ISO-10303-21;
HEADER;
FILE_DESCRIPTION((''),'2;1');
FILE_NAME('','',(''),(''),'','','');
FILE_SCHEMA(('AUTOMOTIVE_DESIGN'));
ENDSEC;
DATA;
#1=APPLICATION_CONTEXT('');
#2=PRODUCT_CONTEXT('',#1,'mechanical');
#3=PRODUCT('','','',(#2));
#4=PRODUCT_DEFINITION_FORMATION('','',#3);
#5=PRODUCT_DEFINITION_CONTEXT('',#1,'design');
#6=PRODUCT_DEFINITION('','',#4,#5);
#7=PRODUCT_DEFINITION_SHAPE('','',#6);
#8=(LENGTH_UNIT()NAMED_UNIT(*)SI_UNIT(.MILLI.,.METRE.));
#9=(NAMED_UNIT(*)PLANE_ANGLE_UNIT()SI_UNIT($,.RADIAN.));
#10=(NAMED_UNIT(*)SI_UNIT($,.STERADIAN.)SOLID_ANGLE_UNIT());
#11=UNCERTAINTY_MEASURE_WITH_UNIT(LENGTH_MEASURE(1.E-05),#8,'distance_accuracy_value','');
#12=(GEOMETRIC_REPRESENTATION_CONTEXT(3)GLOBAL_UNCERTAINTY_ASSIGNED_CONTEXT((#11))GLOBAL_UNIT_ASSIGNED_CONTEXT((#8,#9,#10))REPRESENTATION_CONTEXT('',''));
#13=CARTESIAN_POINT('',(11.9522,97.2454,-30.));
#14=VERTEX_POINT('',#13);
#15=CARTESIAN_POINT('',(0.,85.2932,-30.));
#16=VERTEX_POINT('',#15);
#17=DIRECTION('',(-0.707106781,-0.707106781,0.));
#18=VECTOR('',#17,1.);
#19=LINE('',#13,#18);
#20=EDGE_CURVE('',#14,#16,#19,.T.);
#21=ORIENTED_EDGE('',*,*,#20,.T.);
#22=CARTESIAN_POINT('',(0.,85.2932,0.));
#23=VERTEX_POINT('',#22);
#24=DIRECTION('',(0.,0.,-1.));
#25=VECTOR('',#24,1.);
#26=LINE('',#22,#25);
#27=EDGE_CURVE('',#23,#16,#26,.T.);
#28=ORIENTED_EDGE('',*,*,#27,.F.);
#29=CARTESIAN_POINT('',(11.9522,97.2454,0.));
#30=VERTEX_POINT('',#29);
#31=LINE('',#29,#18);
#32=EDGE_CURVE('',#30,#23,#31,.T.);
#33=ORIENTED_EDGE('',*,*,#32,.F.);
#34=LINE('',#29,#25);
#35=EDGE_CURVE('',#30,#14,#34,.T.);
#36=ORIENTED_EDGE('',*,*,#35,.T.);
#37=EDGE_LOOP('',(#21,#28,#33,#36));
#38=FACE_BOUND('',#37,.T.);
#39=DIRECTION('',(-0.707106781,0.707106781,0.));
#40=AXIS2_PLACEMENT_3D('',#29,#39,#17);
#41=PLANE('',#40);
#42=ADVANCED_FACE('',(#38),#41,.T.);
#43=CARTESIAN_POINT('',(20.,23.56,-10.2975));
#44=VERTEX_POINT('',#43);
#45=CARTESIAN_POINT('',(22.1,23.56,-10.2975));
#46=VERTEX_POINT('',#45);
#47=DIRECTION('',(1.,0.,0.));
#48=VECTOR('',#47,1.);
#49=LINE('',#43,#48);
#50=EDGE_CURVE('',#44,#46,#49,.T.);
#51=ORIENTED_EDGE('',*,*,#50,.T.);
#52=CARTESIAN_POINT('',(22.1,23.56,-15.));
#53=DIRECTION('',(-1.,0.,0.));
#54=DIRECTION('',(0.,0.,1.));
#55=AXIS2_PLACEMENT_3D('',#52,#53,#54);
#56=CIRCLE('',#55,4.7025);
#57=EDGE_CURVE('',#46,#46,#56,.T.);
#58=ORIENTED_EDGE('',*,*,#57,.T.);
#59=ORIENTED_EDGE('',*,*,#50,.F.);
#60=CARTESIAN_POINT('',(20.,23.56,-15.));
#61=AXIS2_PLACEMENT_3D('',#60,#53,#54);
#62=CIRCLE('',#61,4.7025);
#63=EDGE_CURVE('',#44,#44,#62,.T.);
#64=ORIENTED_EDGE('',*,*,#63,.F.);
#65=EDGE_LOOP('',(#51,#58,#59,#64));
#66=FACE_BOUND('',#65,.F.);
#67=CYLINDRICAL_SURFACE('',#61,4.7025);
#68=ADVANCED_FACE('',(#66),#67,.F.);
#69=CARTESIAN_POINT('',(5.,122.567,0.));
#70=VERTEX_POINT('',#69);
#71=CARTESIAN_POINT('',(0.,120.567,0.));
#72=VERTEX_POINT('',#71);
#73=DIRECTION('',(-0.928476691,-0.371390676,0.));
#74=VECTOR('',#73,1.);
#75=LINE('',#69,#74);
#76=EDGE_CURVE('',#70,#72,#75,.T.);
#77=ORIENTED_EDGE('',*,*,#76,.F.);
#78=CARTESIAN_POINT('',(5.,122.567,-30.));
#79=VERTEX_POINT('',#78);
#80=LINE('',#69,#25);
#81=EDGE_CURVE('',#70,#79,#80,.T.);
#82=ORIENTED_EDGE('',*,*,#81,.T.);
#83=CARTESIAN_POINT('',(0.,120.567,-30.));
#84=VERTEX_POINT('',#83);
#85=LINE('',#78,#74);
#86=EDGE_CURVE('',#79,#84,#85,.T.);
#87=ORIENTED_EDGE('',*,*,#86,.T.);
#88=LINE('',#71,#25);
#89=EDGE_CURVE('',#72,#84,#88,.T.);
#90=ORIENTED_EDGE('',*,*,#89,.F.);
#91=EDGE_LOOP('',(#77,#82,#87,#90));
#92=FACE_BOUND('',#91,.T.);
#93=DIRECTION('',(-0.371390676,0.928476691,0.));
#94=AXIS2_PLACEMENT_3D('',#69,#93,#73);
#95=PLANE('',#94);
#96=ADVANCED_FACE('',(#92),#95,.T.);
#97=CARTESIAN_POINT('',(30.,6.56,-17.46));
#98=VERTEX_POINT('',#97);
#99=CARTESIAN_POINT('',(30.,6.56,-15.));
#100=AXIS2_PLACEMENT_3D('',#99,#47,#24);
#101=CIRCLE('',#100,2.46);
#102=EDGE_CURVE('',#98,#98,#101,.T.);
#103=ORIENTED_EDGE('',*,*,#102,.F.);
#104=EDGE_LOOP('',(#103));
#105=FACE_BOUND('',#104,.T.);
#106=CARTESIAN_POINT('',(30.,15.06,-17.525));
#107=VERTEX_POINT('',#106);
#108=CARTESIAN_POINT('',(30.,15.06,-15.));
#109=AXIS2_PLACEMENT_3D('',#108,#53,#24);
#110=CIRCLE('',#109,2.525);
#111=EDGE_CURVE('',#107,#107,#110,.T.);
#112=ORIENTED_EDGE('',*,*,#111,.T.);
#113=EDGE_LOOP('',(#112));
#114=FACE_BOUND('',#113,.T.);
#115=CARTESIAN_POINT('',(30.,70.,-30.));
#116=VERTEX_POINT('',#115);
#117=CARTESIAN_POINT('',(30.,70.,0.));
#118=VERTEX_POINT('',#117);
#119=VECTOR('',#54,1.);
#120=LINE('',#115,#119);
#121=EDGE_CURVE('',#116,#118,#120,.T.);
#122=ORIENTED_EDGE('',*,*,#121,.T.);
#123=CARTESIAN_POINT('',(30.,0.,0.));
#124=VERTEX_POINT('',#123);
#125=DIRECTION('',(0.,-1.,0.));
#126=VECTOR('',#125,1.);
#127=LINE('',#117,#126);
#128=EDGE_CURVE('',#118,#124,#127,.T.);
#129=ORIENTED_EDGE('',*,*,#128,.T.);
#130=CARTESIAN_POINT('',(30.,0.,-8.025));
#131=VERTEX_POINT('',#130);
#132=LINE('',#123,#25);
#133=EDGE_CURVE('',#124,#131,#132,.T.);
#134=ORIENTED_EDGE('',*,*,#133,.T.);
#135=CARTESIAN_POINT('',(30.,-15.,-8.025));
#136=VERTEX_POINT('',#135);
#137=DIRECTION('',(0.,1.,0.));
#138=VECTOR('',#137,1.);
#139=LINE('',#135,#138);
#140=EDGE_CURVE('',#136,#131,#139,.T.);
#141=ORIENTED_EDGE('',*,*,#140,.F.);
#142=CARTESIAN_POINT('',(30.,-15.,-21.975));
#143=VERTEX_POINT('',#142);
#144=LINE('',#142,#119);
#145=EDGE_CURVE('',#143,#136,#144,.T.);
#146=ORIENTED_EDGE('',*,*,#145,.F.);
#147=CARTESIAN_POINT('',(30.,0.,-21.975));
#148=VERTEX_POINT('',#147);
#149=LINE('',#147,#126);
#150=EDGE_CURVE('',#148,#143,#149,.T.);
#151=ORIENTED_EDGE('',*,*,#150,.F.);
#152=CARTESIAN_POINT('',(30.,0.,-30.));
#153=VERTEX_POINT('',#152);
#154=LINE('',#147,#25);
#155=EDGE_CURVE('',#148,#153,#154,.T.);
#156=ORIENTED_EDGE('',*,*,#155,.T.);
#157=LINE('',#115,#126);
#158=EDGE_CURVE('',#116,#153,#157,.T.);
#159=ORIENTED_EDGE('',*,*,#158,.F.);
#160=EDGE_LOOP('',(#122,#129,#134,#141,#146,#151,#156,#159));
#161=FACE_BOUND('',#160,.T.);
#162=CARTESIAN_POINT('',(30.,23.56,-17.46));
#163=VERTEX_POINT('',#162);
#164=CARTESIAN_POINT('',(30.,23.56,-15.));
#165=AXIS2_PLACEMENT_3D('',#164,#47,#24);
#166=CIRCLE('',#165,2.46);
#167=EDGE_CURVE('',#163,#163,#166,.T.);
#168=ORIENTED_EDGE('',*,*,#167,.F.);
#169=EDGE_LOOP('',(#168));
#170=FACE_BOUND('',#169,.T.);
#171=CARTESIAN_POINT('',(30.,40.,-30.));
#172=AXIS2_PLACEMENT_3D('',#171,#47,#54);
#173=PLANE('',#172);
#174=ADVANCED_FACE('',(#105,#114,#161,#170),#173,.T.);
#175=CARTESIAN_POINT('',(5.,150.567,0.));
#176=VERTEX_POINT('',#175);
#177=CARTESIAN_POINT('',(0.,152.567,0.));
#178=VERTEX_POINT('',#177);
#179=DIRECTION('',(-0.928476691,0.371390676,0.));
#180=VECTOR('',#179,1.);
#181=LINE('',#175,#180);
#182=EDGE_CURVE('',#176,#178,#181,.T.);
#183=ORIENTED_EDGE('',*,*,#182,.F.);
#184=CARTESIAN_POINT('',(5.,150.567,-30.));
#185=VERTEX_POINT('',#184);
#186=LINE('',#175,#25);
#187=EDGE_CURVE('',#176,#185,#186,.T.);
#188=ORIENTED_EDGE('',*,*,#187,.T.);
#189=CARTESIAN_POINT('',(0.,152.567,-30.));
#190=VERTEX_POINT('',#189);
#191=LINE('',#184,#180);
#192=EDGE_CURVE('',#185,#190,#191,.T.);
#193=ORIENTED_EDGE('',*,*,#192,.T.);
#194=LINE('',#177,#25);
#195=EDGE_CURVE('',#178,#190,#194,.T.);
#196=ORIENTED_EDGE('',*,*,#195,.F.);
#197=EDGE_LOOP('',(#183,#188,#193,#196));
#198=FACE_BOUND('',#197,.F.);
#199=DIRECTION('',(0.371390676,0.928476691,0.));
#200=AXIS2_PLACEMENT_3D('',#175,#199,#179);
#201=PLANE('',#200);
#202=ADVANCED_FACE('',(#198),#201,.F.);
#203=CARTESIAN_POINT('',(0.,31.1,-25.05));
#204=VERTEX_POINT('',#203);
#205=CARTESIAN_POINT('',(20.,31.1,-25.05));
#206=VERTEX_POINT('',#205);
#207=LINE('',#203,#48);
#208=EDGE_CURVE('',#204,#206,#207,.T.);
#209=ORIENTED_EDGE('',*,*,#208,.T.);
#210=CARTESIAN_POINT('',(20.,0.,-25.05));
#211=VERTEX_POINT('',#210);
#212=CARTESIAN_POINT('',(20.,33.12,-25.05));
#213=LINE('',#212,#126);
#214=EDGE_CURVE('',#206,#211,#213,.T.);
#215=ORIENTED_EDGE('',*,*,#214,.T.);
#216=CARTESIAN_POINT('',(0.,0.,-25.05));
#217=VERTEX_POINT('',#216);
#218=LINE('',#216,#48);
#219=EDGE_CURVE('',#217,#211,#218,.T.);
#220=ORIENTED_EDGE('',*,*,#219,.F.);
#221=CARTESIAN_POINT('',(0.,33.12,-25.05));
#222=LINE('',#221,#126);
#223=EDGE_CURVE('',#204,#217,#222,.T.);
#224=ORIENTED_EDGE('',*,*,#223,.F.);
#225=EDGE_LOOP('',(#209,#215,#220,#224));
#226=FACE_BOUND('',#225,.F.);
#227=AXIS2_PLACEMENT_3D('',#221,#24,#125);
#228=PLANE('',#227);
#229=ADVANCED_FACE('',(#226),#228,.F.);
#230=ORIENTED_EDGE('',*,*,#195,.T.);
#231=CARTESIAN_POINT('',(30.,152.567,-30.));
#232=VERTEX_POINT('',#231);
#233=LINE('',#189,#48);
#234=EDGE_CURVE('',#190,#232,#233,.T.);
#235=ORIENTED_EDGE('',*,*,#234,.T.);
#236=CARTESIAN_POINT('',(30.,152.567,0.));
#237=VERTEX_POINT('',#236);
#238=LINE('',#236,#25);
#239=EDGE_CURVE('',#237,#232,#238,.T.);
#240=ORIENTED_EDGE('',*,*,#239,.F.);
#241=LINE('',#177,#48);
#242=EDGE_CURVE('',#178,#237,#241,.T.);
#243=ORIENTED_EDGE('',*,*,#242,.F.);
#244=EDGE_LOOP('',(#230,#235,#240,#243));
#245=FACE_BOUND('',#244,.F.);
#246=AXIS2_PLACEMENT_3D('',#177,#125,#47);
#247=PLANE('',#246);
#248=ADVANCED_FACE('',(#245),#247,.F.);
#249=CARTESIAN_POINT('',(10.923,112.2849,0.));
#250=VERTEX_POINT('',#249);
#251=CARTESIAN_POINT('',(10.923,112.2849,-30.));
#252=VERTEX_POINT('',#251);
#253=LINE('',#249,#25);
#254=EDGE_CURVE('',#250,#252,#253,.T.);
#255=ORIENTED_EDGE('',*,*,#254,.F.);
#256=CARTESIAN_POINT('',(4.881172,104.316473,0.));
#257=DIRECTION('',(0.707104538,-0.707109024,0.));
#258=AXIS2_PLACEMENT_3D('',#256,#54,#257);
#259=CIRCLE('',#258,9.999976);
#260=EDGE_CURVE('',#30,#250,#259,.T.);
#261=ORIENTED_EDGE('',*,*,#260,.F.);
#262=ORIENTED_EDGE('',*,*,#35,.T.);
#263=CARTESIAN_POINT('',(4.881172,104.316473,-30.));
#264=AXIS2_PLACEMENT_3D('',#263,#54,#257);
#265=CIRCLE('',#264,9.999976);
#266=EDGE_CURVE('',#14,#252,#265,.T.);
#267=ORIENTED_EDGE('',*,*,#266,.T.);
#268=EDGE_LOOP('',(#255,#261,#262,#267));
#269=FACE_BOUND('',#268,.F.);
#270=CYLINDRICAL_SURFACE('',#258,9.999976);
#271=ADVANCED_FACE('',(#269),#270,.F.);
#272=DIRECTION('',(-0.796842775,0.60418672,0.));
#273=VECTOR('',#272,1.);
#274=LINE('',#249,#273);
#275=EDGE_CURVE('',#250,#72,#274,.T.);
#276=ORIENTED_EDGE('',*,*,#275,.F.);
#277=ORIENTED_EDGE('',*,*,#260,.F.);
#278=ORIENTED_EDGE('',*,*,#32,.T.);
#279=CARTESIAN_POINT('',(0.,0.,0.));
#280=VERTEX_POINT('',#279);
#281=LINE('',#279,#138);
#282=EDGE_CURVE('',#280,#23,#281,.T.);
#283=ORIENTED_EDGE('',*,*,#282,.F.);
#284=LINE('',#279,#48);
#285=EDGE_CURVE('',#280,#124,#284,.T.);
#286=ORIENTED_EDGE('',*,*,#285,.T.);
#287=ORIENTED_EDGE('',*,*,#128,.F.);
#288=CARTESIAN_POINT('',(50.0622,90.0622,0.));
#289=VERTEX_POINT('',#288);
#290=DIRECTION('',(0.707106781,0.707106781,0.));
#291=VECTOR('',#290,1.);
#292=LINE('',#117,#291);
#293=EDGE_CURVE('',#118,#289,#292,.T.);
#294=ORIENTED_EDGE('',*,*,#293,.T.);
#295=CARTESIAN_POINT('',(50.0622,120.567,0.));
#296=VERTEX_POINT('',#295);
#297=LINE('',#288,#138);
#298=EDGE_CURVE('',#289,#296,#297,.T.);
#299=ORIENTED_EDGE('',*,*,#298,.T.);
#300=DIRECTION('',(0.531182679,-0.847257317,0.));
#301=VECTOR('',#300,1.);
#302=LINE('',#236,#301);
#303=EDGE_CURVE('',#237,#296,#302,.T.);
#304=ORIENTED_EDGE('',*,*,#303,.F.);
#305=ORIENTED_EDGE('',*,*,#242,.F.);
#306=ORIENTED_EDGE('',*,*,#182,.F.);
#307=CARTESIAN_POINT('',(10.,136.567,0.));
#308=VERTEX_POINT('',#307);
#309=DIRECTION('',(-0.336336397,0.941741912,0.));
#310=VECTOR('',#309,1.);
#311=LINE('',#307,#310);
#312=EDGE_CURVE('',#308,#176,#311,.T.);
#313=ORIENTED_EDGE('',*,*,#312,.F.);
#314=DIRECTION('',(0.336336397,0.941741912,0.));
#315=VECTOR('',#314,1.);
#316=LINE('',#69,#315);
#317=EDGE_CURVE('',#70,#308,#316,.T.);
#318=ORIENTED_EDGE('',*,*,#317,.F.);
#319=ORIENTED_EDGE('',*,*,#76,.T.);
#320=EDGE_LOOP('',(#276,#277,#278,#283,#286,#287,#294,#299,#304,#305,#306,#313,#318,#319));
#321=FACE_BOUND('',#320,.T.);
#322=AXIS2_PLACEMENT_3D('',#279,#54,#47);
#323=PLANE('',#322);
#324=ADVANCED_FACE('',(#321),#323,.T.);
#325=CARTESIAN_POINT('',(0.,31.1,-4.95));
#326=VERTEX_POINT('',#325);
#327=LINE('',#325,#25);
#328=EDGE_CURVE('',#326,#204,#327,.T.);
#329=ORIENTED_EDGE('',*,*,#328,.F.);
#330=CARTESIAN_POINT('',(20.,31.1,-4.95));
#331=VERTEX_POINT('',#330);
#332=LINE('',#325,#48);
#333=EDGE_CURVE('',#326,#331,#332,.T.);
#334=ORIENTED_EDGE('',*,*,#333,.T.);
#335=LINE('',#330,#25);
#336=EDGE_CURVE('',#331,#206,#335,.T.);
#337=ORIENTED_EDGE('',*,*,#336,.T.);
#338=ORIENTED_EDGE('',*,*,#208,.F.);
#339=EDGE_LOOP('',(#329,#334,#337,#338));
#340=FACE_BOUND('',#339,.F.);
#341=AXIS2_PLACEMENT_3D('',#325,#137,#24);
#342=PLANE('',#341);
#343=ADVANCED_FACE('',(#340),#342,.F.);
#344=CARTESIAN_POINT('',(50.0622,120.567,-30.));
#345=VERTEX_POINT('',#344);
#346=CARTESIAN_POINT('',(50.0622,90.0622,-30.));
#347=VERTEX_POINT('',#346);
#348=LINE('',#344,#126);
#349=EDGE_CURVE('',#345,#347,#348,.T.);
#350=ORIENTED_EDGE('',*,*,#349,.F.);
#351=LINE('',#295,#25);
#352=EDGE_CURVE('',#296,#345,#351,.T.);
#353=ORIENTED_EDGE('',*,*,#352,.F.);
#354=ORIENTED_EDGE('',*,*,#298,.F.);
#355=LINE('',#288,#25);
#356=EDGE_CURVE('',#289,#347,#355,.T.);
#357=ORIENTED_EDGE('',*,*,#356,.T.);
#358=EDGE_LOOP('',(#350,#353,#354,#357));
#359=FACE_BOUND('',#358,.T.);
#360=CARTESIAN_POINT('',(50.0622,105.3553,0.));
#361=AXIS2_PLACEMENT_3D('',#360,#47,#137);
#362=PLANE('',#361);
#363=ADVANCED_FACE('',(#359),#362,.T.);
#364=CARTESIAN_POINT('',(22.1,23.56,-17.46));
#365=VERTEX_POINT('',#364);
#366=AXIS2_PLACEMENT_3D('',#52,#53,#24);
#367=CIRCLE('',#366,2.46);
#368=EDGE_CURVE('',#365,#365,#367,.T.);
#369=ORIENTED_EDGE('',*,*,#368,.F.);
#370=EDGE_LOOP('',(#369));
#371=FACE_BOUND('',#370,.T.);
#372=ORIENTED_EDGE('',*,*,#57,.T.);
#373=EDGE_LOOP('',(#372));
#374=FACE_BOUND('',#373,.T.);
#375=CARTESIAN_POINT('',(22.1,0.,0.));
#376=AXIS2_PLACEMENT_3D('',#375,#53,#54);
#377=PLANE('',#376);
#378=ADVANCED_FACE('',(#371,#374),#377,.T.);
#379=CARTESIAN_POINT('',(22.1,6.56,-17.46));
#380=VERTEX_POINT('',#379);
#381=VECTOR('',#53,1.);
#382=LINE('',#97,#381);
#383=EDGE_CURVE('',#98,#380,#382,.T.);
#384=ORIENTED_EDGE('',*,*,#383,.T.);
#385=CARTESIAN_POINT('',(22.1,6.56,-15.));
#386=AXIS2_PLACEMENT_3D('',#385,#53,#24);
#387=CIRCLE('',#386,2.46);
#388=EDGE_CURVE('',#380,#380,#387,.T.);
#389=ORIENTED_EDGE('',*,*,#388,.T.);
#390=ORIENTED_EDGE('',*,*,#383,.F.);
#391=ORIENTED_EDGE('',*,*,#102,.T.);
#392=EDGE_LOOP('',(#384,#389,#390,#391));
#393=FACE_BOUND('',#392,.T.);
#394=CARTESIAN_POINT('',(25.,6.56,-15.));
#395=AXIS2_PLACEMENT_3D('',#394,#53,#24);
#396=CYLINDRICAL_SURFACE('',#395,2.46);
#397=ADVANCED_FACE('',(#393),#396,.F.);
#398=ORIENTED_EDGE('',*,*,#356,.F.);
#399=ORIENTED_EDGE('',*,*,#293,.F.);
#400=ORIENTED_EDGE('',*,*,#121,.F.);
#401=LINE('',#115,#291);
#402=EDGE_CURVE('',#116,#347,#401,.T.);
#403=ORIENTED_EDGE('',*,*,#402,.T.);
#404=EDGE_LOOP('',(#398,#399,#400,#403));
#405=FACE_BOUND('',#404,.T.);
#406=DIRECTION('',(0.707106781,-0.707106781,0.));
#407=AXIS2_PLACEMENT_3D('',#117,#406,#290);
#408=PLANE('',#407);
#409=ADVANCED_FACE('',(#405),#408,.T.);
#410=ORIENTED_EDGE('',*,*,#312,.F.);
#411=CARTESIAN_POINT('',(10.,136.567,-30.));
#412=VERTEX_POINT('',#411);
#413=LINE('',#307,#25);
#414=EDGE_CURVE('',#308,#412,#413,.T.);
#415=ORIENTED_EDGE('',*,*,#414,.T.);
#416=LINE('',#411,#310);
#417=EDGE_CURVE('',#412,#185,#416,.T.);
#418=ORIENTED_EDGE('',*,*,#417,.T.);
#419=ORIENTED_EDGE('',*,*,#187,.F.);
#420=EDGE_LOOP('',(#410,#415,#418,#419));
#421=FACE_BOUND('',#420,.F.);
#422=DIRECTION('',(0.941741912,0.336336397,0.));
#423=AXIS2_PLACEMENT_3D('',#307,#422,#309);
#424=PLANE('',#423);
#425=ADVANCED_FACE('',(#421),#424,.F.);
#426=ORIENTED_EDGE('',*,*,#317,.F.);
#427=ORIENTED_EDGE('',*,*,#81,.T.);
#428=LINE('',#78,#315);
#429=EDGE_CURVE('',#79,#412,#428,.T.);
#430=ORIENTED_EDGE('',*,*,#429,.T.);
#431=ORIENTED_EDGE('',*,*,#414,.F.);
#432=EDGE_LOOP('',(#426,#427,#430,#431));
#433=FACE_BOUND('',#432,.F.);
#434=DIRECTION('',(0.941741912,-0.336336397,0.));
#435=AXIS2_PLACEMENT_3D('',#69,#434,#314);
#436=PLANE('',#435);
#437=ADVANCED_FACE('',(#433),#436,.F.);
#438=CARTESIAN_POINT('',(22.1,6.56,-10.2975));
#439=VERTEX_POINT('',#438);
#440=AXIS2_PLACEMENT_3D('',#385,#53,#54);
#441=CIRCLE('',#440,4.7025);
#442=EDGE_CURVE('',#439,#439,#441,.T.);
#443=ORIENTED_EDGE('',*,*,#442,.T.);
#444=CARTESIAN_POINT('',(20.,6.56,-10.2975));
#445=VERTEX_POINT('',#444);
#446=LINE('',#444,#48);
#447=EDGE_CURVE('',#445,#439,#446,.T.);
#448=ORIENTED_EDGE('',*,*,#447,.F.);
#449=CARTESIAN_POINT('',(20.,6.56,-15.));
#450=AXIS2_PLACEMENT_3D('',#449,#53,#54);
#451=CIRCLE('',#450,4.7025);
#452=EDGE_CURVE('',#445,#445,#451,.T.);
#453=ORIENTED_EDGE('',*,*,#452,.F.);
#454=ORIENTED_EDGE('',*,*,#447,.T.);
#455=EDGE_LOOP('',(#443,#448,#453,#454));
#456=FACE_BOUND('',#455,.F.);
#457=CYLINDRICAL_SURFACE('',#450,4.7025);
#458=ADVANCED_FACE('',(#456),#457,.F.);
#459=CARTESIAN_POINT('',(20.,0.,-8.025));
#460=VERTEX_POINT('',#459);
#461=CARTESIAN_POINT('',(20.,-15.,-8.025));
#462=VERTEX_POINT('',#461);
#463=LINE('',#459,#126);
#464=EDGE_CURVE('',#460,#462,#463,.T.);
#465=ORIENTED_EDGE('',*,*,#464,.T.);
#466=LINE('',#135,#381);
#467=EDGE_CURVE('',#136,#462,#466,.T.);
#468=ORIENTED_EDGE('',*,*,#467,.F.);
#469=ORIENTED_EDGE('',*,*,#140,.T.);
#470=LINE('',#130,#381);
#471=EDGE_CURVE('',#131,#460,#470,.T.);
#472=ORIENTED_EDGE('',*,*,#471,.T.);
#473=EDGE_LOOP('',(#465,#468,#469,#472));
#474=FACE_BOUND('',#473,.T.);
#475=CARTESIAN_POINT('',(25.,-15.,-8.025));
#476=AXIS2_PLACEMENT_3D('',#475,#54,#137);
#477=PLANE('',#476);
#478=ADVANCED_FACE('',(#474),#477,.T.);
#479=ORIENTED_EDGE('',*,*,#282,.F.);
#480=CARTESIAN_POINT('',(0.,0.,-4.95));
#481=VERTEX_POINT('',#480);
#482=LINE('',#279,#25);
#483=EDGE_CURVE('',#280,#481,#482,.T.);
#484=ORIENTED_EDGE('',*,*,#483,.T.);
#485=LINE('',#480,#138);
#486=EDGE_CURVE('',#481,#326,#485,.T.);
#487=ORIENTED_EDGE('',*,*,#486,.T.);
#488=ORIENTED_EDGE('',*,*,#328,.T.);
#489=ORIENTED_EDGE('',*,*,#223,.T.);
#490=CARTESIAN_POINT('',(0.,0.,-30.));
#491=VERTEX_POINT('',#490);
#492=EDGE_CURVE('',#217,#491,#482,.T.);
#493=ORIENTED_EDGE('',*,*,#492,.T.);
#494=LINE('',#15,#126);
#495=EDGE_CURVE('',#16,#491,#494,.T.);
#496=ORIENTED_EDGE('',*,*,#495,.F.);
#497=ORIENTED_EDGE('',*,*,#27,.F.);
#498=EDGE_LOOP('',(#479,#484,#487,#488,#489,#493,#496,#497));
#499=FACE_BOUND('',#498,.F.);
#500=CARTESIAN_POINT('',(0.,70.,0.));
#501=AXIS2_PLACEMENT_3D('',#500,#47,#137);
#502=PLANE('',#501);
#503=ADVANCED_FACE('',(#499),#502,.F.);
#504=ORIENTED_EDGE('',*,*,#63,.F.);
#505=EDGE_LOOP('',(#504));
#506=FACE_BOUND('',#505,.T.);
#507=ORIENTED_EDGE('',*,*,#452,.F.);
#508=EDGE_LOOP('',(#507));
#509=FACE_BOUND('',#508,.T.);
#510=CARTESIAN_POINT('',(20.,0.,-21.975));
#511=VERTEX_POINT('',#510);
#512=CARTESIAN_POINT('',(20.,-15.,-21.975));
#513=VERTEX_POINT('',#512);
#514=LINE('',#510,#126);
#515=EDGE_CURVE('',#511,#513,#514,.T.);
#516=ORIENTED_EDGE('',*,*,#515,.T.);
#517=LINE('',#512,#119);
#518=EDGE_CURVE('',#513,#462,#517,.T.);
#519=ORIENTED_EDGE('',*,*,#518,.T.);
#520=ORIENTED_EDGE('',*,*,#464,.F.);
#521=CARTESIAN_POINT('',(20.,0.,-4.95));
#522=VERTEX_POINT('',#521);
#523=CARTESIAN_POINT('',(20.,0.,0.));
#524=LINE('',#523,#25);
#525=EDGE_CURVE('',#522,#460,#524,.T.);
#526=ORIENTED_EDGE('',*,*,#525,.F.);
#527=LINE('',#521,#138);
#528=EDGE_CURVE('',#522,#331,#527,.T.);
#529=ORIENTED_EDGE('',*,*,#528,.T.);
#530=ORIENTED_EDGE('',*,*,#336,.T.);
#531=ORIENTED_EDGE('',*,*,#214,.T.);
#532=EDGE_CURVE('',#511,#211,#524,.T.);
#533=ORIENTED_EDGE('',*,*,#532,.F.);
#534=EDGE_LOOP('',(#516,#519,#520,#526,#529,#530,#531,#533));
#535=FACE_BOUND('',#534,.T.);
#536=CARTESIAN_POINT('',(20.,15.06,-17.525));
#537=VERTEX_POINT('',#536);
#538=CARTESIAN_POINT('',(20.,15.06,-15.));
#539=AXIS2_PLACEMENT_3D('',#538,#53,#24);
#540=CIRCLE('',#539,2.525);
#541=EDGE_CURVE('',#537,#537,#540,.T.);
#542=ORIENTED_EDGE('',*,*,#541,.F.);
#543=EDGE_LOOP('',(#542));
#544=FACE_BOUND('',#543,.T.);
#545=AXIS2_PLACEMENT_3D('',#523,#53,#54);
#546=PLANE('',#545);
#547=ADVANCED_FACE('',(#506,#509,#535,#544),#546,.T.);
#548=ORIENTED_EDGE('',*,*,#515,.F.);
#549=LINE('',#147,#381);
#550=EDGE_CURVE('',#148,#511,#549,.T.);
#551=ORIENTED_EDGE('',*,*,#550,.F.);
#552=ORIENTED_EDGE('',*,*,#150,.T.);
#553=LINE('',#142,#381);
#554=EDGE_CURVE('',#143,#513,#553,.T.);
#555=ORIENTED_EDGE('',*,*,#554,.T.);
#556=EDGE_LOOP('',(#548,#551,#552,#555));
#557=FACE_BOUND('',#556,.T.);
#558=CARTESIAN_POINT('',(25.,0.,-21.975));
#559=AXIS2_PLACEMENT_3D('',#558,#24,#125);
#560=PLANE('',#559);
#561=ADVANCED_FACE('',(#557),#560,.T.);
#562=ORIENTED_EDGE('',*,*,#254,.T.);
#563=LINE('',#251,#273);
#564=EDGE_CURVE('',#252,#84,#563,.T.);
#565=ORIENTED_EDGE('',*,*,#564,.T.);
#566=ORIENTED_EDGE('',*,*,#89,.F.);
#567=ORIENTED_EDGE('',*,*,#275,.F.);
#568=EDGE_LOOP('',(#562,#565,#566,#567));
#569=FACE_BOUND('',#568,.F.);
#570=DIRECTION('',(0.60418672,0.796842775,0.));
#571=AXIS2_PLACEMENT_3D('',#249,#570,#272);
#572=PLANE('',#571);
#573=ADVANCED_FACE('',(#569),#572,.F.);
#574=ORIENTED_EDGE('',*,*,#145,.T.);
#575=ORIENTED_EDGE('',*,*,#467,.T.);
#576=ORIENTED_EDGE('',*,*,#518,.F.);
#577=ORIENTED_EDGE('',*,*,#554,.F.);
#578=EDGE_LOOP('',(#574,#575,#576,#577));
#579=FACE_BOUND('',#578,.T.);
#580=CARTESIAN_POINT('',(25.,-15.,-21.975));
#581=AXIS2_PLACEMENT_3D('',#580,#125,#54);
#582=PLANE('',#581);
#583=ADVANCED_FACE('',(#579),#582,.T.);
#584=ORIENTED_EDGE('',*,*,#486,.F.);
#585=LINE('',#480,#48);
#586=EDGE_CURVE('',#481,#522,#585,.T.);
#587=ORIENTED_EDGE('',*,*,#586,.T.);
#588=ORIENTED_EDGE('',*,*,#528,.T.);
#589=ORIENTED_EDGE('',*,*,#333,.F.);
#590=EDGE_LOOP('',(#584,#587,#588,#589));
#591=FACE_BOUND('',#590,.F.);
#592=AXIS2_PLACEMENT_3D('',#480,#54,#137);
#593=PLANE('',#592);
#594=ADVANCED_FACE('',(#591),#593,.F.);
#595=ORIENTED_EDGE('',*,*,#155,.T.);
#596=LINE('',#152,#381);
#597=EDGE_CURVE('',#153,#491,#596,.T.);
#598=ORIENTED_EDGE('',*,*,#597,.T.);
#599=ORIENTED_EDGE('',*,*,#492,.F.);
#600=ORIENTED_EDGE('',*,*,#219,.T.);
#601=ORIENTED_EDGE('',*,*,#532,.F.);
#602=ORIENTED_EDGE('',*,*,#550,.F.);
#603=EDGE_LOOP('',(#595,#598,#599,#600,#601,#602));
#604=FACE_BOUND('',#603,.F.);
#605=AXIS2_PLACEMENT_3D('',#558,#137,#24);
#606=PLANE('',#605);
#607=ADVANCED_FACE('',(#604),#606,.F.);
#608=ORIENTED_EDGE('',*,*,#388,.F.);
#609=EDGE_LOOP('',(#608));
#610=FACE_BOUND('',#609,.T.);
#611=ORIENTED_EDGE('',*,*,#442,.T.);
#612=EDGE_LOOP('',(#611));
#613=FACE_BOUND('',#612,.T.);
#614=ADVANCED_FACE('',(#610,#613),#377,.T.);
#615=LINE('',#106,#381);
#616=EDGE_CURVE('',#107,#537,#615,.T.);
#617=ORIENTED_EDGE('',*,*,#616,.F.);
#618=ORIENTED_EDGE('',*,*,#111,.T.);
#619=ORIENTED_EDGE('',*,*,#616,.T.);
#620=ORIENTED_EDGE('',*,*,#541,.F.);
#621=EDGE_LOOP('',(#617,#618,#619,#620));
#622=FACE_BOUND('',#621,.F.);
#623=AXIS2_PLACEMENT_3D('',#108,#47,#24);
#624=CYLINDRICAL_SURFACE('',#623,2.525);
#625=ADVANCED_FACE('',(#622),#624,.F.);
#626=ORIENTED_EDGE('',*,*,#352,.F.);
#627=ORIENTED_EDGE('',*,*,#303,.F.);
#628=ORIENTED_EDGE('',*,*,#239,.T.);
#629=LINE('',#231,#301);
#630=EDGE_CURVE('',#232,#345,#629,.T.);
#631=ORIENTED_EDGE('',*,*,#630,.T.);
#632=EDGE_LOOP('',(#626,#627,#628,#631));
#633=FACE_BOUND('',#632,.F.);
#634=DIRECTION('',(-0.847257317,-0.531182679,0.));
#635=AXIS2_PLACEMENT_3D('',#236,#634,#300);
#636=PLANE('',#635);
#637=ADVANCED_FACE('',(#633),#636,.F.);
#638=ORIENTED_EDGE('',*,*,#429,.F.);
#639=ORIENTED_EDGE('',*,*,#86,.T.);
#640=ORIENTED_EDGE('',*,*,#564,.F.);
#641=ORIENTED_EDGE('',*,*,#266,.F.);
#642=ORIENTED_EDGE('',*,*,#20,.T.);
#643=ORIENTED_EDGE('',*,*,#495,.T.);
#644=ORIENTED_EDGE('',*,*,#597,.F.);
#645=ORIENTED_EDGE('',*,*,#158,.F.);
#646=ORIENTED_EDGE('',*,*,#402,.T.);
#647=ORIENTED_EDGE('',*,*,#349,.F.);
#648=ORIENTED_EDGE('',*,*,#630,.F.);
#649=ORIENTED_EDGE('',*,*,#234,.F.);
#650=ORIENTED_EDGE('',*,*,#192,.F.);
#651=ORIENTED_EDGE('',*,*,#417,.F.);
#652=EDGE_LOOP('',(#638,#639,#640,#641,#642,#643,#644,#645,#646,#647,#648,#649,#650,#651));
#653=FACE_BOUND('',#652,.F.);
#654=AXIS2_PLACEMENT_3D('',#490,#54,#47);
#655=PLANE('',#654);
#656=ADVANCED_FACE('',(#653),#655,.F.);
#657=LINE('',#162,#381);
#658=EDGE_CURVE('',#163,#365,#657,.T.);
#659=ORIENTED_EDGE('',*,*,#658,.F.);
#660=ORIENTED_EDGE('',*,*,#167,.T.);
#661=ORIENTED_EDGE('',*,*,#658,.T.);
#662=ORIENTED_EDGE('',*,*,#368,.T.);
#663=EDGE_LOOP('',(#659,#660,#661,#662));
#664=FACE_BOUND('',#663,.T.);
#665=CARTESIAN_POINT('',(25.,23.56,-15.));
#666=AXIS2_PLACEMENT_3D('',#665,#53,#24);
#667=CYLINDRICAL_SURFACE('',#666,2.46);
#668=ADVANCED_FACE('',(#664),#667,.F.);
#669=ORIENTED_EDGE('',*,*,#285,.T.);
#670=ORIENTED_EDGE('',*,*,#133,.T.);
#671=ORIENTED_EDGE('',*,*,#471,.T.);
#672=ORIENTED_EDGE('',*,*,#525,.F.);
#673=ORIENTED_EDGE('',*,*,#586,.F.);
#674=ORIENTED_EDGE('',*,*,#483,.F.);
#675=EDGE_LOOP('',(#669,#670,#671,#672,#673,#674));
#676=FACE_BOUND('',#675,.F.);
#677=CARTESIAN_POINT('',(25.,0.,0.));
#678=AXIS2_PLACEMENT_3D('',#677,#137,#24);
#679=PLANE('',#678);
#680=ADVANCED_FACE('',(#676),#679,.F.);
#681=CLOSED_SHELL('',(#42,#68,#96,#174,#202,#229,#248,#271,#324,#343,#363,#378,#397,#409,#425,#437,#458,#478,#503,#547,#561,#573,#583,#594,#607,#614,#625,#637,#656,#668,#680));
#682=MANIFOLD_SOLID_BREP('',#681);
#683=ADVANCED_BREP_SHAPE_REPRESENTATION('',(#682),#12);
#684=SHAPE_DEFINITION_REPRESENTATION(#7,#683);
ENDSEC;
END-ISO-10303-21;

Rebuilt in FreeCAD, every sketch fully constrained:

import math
import FreeCAD as App
import Part
import Sketcher
Q = App.Units.Quantity

doc = App.newDocument("Part")
params = doc.addObject("Spreadsheet::Sheet", "Params")
for row, (alias, value) in enumerate([
    ("sketch1_width", "25 mm"),
    ("sketch1_height", "40 mm"),
    ("pad1_length", "30 mm"),
    ("sketch2_diameter", "4.92 mm"),
    ("pocket1_length", "30 mm"),
    ("sketch3_height", "20.1 mm"),
    ("sketch3_width", "33.12 mm"),
    ("pocket2_length", "20 mm"),
    ("sketch4_height", "13.95 mm"),
    ("sketch4_width", "5 mm"),
    ("pad2_length", "15 mm"),
    ("sketch5_diameter", "4.92 mm"),
    ("pocket3_length", "2.1 mm"),
    ("sketch6_diameter", "4.92 mm"),
    ("pocket4_length", "10 mm"),
    ("sketch7_diameter", "4.92 mm"),
    ("pocket5_length", "2.1 mm"),
    ("sketch8_diameter", "4.92 mm"),
    ("sketch8_width", "40 mm"),
    ("sketch8_width2", "15 mm"),
    ("sketch8_height", "30 mm"),
    ("sketch8_height2", "13.95 mm"),
    ("pad3_length", "5 mm"),
    ("sketch9_width", "30 mm"),
    ("pad4_length", "30 mm"),
    ("sketch10_diameter", "5.05 mm"),
    ("pocket6_length", "30 mm"),
    ("sketch11_width", "2.02 mm"),
    ("sketch11_height", "20.1 mm"),
    ("pad5_length", "20 mm"),
    ("sketch12_radius", "10 mm"),
    ("sketch12_width", "30 mm"),
    ("pad6_length", "30 mm"),
], start=1):
    params.set(f"A{row}", alias)
    params.set(f"B{row}", "=" + value)
    params.setAlias(f"B{row}", alias)

body = doc.addObject("PartDesign::Body", "Body")

# Sketch on XY plane
sketch1 = body.newObject("Sketcher::SketchObject", "Sketch")
sketch1.AttachmentSupport = (doc.getObject("XY_Plane"), [""])
sketch1.MapMode = "FlatFace"
sketch1.addGeometry(Part.LineSegment(App.Vector(0, 40, 0), App.Vector(0, 0, 0)), False)
sketch1.addGeometry(Part.LineSegment(App.Vector(0, 0, 0), App.Vector(25, 0, 0)), False)
sketch1.addGeometry(Part.LineSegment(App.Vector(25, 0, 0), App.Vector(25, 40, 0)), False)
sketch1.addGeometry(Part.LineSegment(App.Vector(25, 40, 0), App.Vector(0, 40, 0)), False)
sketch1.addConstraint(Sketcher.Constraint("Coincident", 0, 2, 1, 1))
sketch1.addConstraint(Sketcher.Constraint("Coincident", 1, 2, 2, 1))
sketch1.addConstraint(Sketcher.Constraint("Coincident", 2, 2, 3, 1))
sketch1.addConstraint(Sketcher.Constraint("Coincident", 3, 2, 0, 1))
sketch1.addConstraint(Sketcher.Constraint("Vertical", 0))
sketch1.addConstraint(Sketcher.Constraint("Horizontal", 1))
sketch1.addConstraint(Sketcher.Constraint("Vertical", 2))
sketch1.addConstraint(Sketcher.Constraint("Horizontal", 3))
sketch1.addConstraint(Sketcher.Constraint("Coincident", 0, 2, -1, 1))
sketch1.addConstraint(Sketcher.Constraint("DistanceX", 1, 1, 1, 2, 25.0))
sketch1.addConstraint(Sketcher.Constraint("DistanceY", 0, 2, 0, 1, 40.0))
sketch1.setExpression("Constraints[9]", "Params.sketch1_width")
sketch1.setExpression("Constraints[10]", "Params.sketch1_height")
pad1 = body.newObject("PartDesign::Pad", "Pad")
pad1.Profile = sketch1
pad1.setExpression("Length", "Params.pad1_length")
pad1.Reversed = True

# Sketch on YZ plane
sketch2 = body.newObject("Sketcher::SketchObject", "Sketch001")
sketch2.AttachmentSupport = (doc.getObject("YZ_Plane"), [""])
sketch2.MapMode = "FlatFace"
sketch2.AttachmentOffset = App.Placement(App.Vector(0, 0, 25), App.Rotation())
sketch2.addGeometry(Part.Circle(App.Vector(6.6, -15, 0), App.Vector(0, 0, 1), 2.5), False)
sketch2.addConstraint(Sketcher.Constraint("Diameter", 0, 4.92))
sketch2.addConstraint(Sketcher.Constraint("DistanceY", 0, 3, -1, 1, 15.0))
sketch2.addConstraint(Sketcher.Constraint("DistanceX", -1, 1, 0, 3, 6.56))
sketch2.setExpression("Constraints[0]", "Params.sketch2_diameter")
pocket1 = body.newObject("PartDesign::Pocket", "Pocket")
pocket1.Profile = sketch2
pocket1.setExpression("Length", "Params.pocket1_length")

# Sketch on YZ plane
sketch3 = body.newObject("Sketcher::SketchObject", "Sketch002")
sketch3.AttachmentSupport = (doc.getObject("YZ_Plane"), [""])
sketch3.MapMode = "FlatFace"
sketch3.addGeometry(Part.LineSegment(App.Vector(0, -25, 0), App.Vector(0, -5, 0)), False)
sketch3.addGeometry(Part.LineSegment(App.Vector(0, -5, 0), App.Vector(33, -5, 0)), False)
sketch3.addGeometry(Part.LineSegment(App.Vector(33, -5, 0), App.Vector(33, -25, 0)), False)
sketch3.addGeometry(Part.LineSegment(App.Vector(33, -25, 0), App.Vector(0, -25, 0)), False)
sketch3.addConstraint(Sketcher.Constraint("Coincident", 0, 2, 1, 1))
sketch3.addConstraint(Sketcher.Constraint("Coincident", 1, 2, 2, 1))
sketch3.addConstraint(Sketcher.Constraint("Coincident", 2, 2, 3, 1))
sketch3.addConstraint(Sketcher.Constraint("Coincident", 3, 2, 0, 1))
sketch3.addConstraint(Sketcher.Constraint("Vertical", 0))
sketch3.addConstraint(Sketcher.Constraint("Horizontal", 1))
sketch3.addConstraint(Sketcher.Constraint("Vertical", 2))
sketch3.addConstraint(Sketcher.Constraint("Horizontal", 3))
sketch3.addConstraint(Sketcher.Constraint("PointOnObject", 0, 2, -2))
sketch3.addConstraint(Sketcher.Constraint("DistanceY", 0, 1, 0, 2, 20.1))
sketch3.addConstraint(Sketcher.Constraint("DistanceX", 1, 1, 1, 2, 33.12))
sketch3.addConstraint(Sketcher.Constraint("DistanceY", 0, 2, -1, 1, 4.95))
sketch3.setExpression("Constraints[9]", "Params.sketch3_height")
sketch3.setExpression("Constraints[10]", "Params.sketch3_width")
pocket2 = body.newObject("PartDesign::Pocket", "Pocket001")
pocket2.Profile = sketch3
pocket2.setExpression("Length", "Params.pocket2_length")
pocket2.Reversed = True

# Sketch on XZ plane
sketch4 = body.newObject("Sketcher::SketchObject", "Sketch003")
sketch4.AttachmentSupport = (doc.getObject("XZ_Plane"), [""])
sketch4.MapMode = "FlatFace"
sketch4.addGeometry(Part.LineSegment(App.Vector(25, -8, 0), App.Vector(20, -8, 0)), False)
sketch4.addGeometry(Part.LineSegment(App.Vector(20, -8, 0), App.Vector(20, -22, 0)), False)
sketch4.addGeometry(Part.LineSegment(App.Vector(20, -22, 0), App.Vector(25, -22, 0)), False)
sketch4.addGeometry(Part.LineSegment(App.Vector(25, -22, 0), App.Vector(25, -8, 0)), False)
sketch4.addConstraint(Sketcher.Constraint("Coincident", 0, 2, 1, 1))
sketch4.addConstraint(Sketcher.Constraint("Coincident", 1, 2, 2, 1))
sketch4.addConstraint(Sketcher.Constraint("Coincident", 2, 2, 3, 1))
sketch4.addConstraint(Sketcher.Constraint("Coincident", 3, 2, 0, 1))
sketch4.addConstraint(Sketcher.Constraint("Horizontal", 0))
sketch4.addConstraint(Sketcher.Constraint("Vertical", 1))
sketch4.addConstraint(Sketcher.Constraint("Horizontal", 2))
sketch4.addConstraint(Sketcher.Constraint("Vertical", 3))
sketch4.addConstraint(Sketcher.Constraint("DistanceY", 1, 2, 1, 1, 13.95))
sketch4.addConstraint(Sketcher.Constraint("DistanceX", 0, 2, 0, 1, 5.0))
sketch4.addConstraint(Sketcher.Constraint("DistanceX", -1, 1, 0, 2, 20.0))
sketch4.addConstraint(Sketcher.Constraint("DistanceY", 0, 2, -1, 1, 8.025))
sketch4.setExpression("Constraints[8]", "Params.sketch4_height")
sketch4.setExpression("Constraints[9]", "Params.sketch4_width")
pad2 = body.newObject("PartDesign::Pad", "Pad001")
pad2.Profile = sketch4
pad2.setExpression("Length", "Params.pad2_length")

# Sketch on YZ plane
sketch5 = body.newObject("Sketcher::SketchObject", "Sketch004")
sketch5.AttachmentSupport = (doc.getObject("YZ_Plane"), [""])
sketch5.MapMode = "FlatFace"
sketch5.AttachmentOffset = App.Placement(App.Vector(0, 0, 20), App.Rotation())
sketch5.addGeometry(Part.Circle(App.Vector(6.6, -15, 0), App.Vector(0, 0, 1), 4.7), False)
sketch5.addGeometry(Part.Circle(App.Vector(6.6, -15, 0), App.Vector(0, 0, 1), 2.5), False)
sketch5.addConstraint(Sketcher.Constraint("Coincident", 1, 3, 0, 3))
sketch5.addConstraint(Sketcher.Constraint("Diameter", 0, 9.405))
sketch5.addConstraint(Sketcher.Constraint("Diameter", 1, 4.92))
sketch5.addConstraint(Sketcher.Constraint("DistanceY", 0, 3, -1, 1, 15.0))
sketch5.addConstraint(Sketcher.Constraint("DistanceX", -1, 1, 0, 3, 6.56))
sketch5.setExpression("Constraints[2]", "Params.sketch5_diameter")
pocket3 = body.newObject("PartDesign::Pocket", "Pocket002")
pocket3.Profile = sketch5
pocket3.setExpression("Length", "Params.pocket3_length")
pocket3.Reversed = True

# Sketch on YZ plane
sketch6 = body.newObject("Sketcher::SketchObject", "Sketch005")
sketch6.AttachmentSupport = (doc.getObject("YZ_Plane"), [""])
sketch6.MapMode = "FlatFace"
sketch6.AttachmentOffset = App.Placement(App.Vector(0, 0, 25), App.Rotation())
sketch6.addGeometry(Part.Circle(App.Vector(23.6, -15, 0), App.Vector(0, 0, 1), 2.5), False)
sketch6.addConstraint(Sketcher.Constraint("Diameter", 0, 4.92))
sketch6.addConstraint(Sketcher.Constraint("DistanceY", 0, 3, -1, 1, 15.0))
sketch6.addConstraint(Sketcher.Constraint("DistanceX", -1, 1, 0, 3, 23.56))
sketch6.setExpression("Constraints[0]", "Params.sketch6_diameter")
pocket4 = body.newObject("PartDesign::Pocket", "Pocket003")
pocket4.Profile = sketch6
pocket4.setExpression("Length", "Params.pocket4_length")

# Sketch on YZ plane
sketch7 = body.newObject("Sketcher::SketchObject", "Sketch006")
sketch7.AttachmentSupport = (doc.getObject("YZ_Plane"), [""])
sketch7.MapMode = "FlatFace"
sketch7.AttachmentOffset = App.Placement(App.Vector(0, 0, 20), App.Rotation())
sketch7.addGeometry(Part.Circle(App.Vector(23.6, -15, 0), App.Vector(0, 0, 1), 4.7), False)
sketch7.addGeometry(Part.Circle(App.Vector(23.6, -15, 0), App.Vector(0, 0, 1), 2.5), False)
sketch7.addConstraint(Sketcher.Constraint("Coincident", 1, 3, 0, 3))
sketch7.addConstraint(Sketcher.Constraint("Diameter", 0, 9.405))
sketch7.addConstraint(Sketcher.Constraint("Diameter", 1, 4.92))
sketch7.addConstraint(Sketcher.Constraint("DistanceY", 0, 3, -1, 1, 15.0))
sketch7.addConstraint(Sketcher.Constraint("DistanceX", -1, 1, 0, 3, 23.56))
sketch7.setExpression("Constraints[2]", "Params.sketch7_diameter")
pocket5 = body.newObject("PartDesign::Pocket", "Pocket004")
pocket5.Profile = sketch7
pocket5.setExpression("Length", "Params.pocket5_length")
pocket5.Reversed = True

# Sketch on YZ plane
sketch8 = body.newObject("Sketcher::SketchObject", "Sketch007")
sketch8.AttachmentSupport = (doc.getObject("YZ_Plane"), [""])
sketch8.MapMode = "FlatFace"
sketch8.AttachmentOffset = App.Placement(App.Vector(0, 0, 25), App.Rotation())
sketch8.addGeometry(Part.LineSegment(App.Vector(0, -30, 0), App.Vector(40, -30, 0)), False)
sketch8.addGeometry(Part.LineSegment(App.Vector(40, -30, 0), App.Vector(40, 0, 0)), False)
sketch8.addGeometry(Part.LineSegment(App.Vector(40, 0, 0), App.Vector(0, 0, 0)), False)
sketch8.addGeometry(Part.LineSegment(App.Vector(0, 0, 0), App.Vector(0, -8, 0)), False)
sketch8.addGeometry(Part.LineSegment(App.Vector(0, -8, 0), App.Vector(-15, -8, 0)), False)
sketch8.addGeometry(Part.LineSegment(App.Vector(-15, -8, 0), App.Vector(-15, -22, 0)), False)
sketch8.addGeometry(Part.LineSegment(App.Vector(-15, -22, 0), App.Vector(0, -22, 0)), False)
sketch8.addGeometry(Part.LineSegment(App.Vector(0, -22, 0), App.Vector(0, -30, 0)), False)
sketch8.addGeometry(Part.Circle(App.Vector(6.6, -15, 0), App.Vector(0, 0, 1), 2.5), False)
sketch8.addGeometry(Part.Circle(App.Vector(23.6, -15, 0), App.Vector(0, 0, 1), 2.5), False)
sketch8.addConstraint(Sketcher.Constraint("Coincident", 0, 2, 1, 1))
sketch8.addConstraint(Sketcher.Constraint("Coincident", 1, 2, 2, 1))
sketch8.addConstraint(Sketcher.Constraint("Coincident", 2, 2, 3, 1))
sketch8.addConstraint(Sketcher.Constraint("Coincident", 3, 2, 4, 1))
sketch8.addConstraint(Sketcher.Constraint("Coincident", 4, 2, 5, 1))
sketch8.addConstraint(Sketcher.Constraint("Coincident", 5, 2, 6, 1))
sketch8.addConstraint(Sketcher.Constraint("Coincident", 6, 2, 7, 1))
sketch8.addConstraint(Sketcher.Constraint("Coincident", 7, 2, 0, 1))
sketch8.addConstraint(Sketcher.Constraint("Horizontal", 0))
sketch8.addConstraint(Sketcher.Constraint("Vertical", 1))
sketch8.addConstraint(Sketcher.Constraint("Horizontal", 2))
sketch8.addConstraint(Sketcher.Constraint("Vertical", 3))
sketch8.addConstraint(Sketcher.Constraint("Horizontal", 4))
sketch8.addConstraint(Sketcher.Constraint("Vertical", 5))
sketch8.addConstraint(Sketcher.Constraint("Horizontal", 6))
sketch8.addConstraint(Sketcher.Constraint("Vertical", 7))
sketch8.addConstraint(Sketcher.Constraint("Coincident", 2, 2, -1, 1))
sketch8.addConstraint(Sketcher.Constraint("Equal", 8, 9))
sketch8.addConstraint(Sketcher.Constraint("PointOnObject", 6, 2, -2))
sketch8.addConstraint(Sketcher.Constraint("Horizontal", 8, 3, 9, 3))
sketch8.addConstraint(Sketcher.Constraint("Equal", 3, 7))
sketch8.addConstraint(Sketcher.Constraint("Diameter", 8, 4.92))
sketch8.addConstraint(Sketcher.Constraint("DistanceX", 0, 1, 0, 2, 40.0))
sketch8.addConstraint(Sketcher.Constraint("DistanceX", 4, 2, 4, 1, 15.0))
sketch8.addConstraint(Sketcher.Constraint("DistanceY", 1, 1, 1, 2, 30.0))
sketch8.addConstraint(Sketcher.Constraint("DistanceY", 8, 3, -1, 1, 15.0))
sketch8.addConstraint(Sketcher.Constraint("DistanceX", 8, 3, 9, 3, 17.0))
sketch8.addConstraint(Sketcher.Constraint("DistanceY", 5, 2, 5, 1, 13.95))
sketch8.addConstraint(Sketcher.Constraint("DistanceX", -1, 1, 8, 3, 6.56))
sketch8.setExpression("Constraints[21]", "Params.sketch8_diameter")
sketch8.setExpression("Constraints[22]", "Params.sketch8_width")
sketch8.setExpression("Constraints[23]", "Params.sketch8_width2")
sketch8.setExpression("Constraints[24]", "Params.sketch8_height")
sketch8.setExpression("Constraints[27]", "Params.sketch8_height2")
pad3 = body.newObject("PartDesign::Pad", "Pad002")
pad3.Profile = sketch8
pad3.setExpression("Length", "Params.pad3_length")

# Sketch on XZ plane
sketch9 = body.newObject("Sketcher::SketchObject", "Sketch008")
sketch9.AttachmentSupport = (doc.getObject("XZ_Plane"), [""])
sketch9.MapMode = "FlatFace"
sketch9.AttachmentOffset = App.Placement(App.Vector(0, 0, -40), App.Rotation())
sketch9.addGeometry(Part.LineSegment(App.Vector(30, -30, 0), App.Vector(0, -30, 0)), False)
sketch9.addGeometry(Part.LineSegment(App.Vector(0, -30, 0), App.Vector(0, 0, 0)), False)
sketch9.addGeometry(Part.LineSegment(App.Vector(0, 0, 0), App.Vector(30, 0, 0)), False)
sketch9.addGeometry(Part.LineSegment(App.Vector(30, 0, 0), App.Vector(30, -30, 0)), False)
sketch9.addConstraint(Sketcher.Constraint("Coincident", 0, 2, 1, 1))
sketch9.addConstraint(Sketcher.Constraint("Coincident", 1, 2, 2, 1))
sketch9.addConstraint(Sketcher.Constraint("Coincident", 2, 2, 3, 1))
sketch9.addConstraint(Sketcher.Constraint("Coincident", 3, 2, 0, 1))
sketch9.addConstraint(Sketcher.Constraint("Horizontal", 0))
sketch9.addConstraint(Sketcher.Constraint("Vertical", 1))
sketch9.addConstraint(Sketcher.Constraint("Horizontal", 2))
sketch9.addConstraint(Sketcher.Constraint("Vertical", 3))
sketch9.addConstraint(Sketcher.Constraint("Coincident", 1, 2, -1, 1))
sketch9.addConstraint(Sketcher.Constraint("Equal", 2, 1))
sketch9.addConstraint(Sketcher.Constraint("DistanceX", 0, 2, 0, 1, 30.0))
sketch9.setExpression("Constraints[10]", "Params.sketch9_width")
pad4 = body.newObject("PartDesign::Pad", "Pad003")
pad4.Profile = sketch9
pad4.setExpression("Length", "Params.pad4_length")
pad4.Reversed = True

# Sketch on YZ plane
sketch10 = body.newObject("Sketcher::SketchObject", "Sketch009")
sketch10.AttachmentSupport = (doc.getObject("YZ_Plane"), [""])
sketch10.MapMode = "FlatFace"
sketch10.AttachmentOffset = App.Placement(App.Vector(0, 0, 30), App.Rotation())
sketch10.addGeometry(Part.Circle(App.Vector(15.1, -15, 0), App.Vector(0, 0, 1), 2.5), False)
sketch10.addConstraint(Sketcher.Constraint("Diameter", 0, 5.05))
sketch10.addConstraint(Sketcher.Constraint("DistanceY", 0, 3, -1, 1, 15.0))
sketch10.addConstraint(Sketcher.Constraint("DistanceX", -1, 1, 0, 3, 15.06))
sketch10.setExpression("Constraints[0]", "Params.sketch10_diameter")
pocket6 = body.newObject("PartDesign::Pocket", "Pocket005")
pocket6.Profile = sketch10
pocket6.setExpression("Length", "Params.pocket6_length")

# Sketch on YZ plane
sketch11 = body.newObject("Sketcher::SketchObject", "Sketch010")
sketch11.AttachmentSupport = (doc.getObject("YZ_Plane"), [""])
sketch11.MapMode = "FlatFace"
sketch11.addGeometry(Part.LineSegment(App.Vector(33.1, -5, 0), App.Vector(33.1, -25.1, 0)), False)
sketch11.addGeometry(Part.LineSegment(App.Vector(33.1, -25.1, 0), App.Vector(31.1, -25.1, 0)), False)
sketch11.addGeometry(Part.LineSegment(App.Vector(31.1, -25.1, 0), App.Vector(31.1, -5, 0)), False)
sketch11.addGeometry(Part.LineSegment(App.Vector(31.1, -5, 0), App.Vector(33.1, -5, 0)), False)
sketch11.addConstraint(Sketcher.Constraint("Coincident", 0, 2, 1, 1))
sketch11.addConstraint(Sketcher.Constraint("Coincident", 1, 2, 2, 1))
sketch11.addConstraint(Sketcher.Constraint("Coincident", 2, 2, 3, 1))
sketch11.addConstraint(Sketcher.Constraint("Coincident", 3, 2, 0, 1))
sketch11.addConstraint(Sketcher.Constraint("Vertical", 0))
sketch11.addConstraint(Sketcher.Constraint("Horizontal", 1))
sketch11.addConstraint(Sketcher.Constraint("Vertical", 2))
sketch11.addConstraint(Sketcher.Constraint("Horizontal", 3))
sketch11.addConstraint(Sketcher.Constraint("DistanceX", 1, 2, 1, 1, 2.02))
sketch11.addConstraint(Sketcher.Constraint("DistanceY", 0, 2, 0, 1, 20.1))
sketch11.addConstraint(Sketcher.Constraint("DistanceX", -1, 1, 1, 2, 31.1))
sketch11.addConstraint(Sketcher.Constraint("DistanceY", 0, 2, -1, 1, 25.05))
sketch11.setExpression("Constraints[8]", "Params.sketch11_width")
sketch11.setExpression("Constraints[9]", "Params.sketch11_height")
pad5 = body.newObject("PartDesign::Pad", "Pad004")
pad5.Profile = sketch11
pad5.setExpression("Length", "Params.pad5_length")

# Sketch on XY plane
sketch12 = body.newObject("Sketcher::SketchObject", "Sketch011")
sketch12.AttachmentSupport = (doc.getObject("XY_Plane"), [""])
sketch12.MapMode = "FlatFace"
sketch12.addGeometry(Part.LineSegment(App.Vector(0, 85, 0), App.Vector(0, 70, 0)), False)
sketch12.addGeometry(Part.LineSegment(App.Vector(0, 70, 0), App.Vector(30, 70, 0)), False)
sketch12.addGeometry(Part.LineSegment(App.Vector(30, 70, 0), App.Vector(50, 90, 0)), False)
sketch12.addGeometry(Part.LineSegment(App.Vector(50, 90, 0), App.Vector(50, 121, 0)), False)
sketch12.addGeometry(Part.LineSegment(App.Vector(50, 121, 0), App.Vector(30, 153, 0)), False)
sketch12.addGeometry(Part.LineSegment(App.Vector(30, 153, 0), App.Vector(0, 153, 0)), False)
sketch12.addGeometry(Part.LineSegment(App.Vector(0, 153, 0), App.Vector(5, 151, 0)), False)
sketch12.addGeometry(Part.LineSegment(App.Vector(5, 151, 0), App.Vector(10, 137, 0)), False)
sketch12.addGeometry(Part.LineSegment(App.Vector(10, 137, 0), App.Vector(5, 123, 0)), False)
sketch12.addGeometry(Part.LineSegment(App.Vector(5, 123, 0), App.Vector(0, 121, 0)), False)
sketch12.addGeometry(Part.LineSegment(App.Vector(0, 121, 0), App.Vector(11, 112, 0)), False)
sketch12.addGeometry(Part.ArcOfCircle(Part.Circle(App.Vector(5, 104, 0), App.Vector(0, 0, 1), 10), math.radians(-45), math.radians(53)), False)
sketch12.addGeometry(Part.LineSegment(App.Vector(12, 97, 0), App.Vector(0, 85, 0)), False)
sketch12.addConstraint(Sketcher.Constraint("Coincident", 0, 2, 1, 1))
sketch12.addConstraint(Sketcher.Constraint("Coincident", 1, 2, 2, 1))
sketch12.addConstraint(Sketcher.Constraint("Coincident", 2, 2, 3, 1))
sketch12.addConstraint(Sketcher.Constraint("Coincident", 3, 2, 4, 1))
sketch12.addConstraint(Sketcher.Constraint("Coincident", 4, 2, 5, 1))
sketch12.addConstraint(Sketcher.Constraint("Coincident", 5, 2, 6, 1))
sketch12.addConstraint(Sketcher.Constraint("Coincident", 6, 2, 7, 1))
sketch12.addConstraint(Sketcher.Constraint("Coincident", 7, 2, 8, 1))
sketch12.addConstraint(Sketcher.Constraint("Coincident", 8, 2, 9, 1))
sketch12.addConstraint(Sketcher.Constraint("Coincident", 9, 2, 10, 1))
sketch12.addConstraint(Sketcher.Constraint("Tangent", 10, 2, 11, 2))
sketch12.addConstraint(Sketcher.Constraint("Tangent", 11, 1, 12, 1))
sketch12.addConstraint(Sketcher.Constraint("Coincident", 12, 2, 0, 1))
sketch12.addConstraint(Sketcher.Constraint("Vertical", 0))
sketch12.addConstraint(Sketcher.Constraint("Horizontal", 1))
sketch12.addConstraint(Sketcher.Constraint("Vertical", 3))
sketch12.addConstraint(Sketcher.Constraint("Horizontal", 5))
sketch12.addConstraint(Sketcher.Constraint("PointOnObject", 0, 2, -2))
sketch12.addConstraint(Sketcher.Constraint("PointOnObject", 5, 2, -2))
sketch12.addConstraint(Sketcher.Constraint("PointOnObject", 9, 2, -2))
sketch12.addConstraint(Sketcher.Constraint("Parallel", 2, 12))
sketch12.addConstraint(Sketcher.Constraint("Horizontal", 3, 2, 9, 2))
sketch12.addConstraint(Sketcher.Constraint("Vertical", 1, 2, 4, 2))
sketch12.addConstraint(Sketcher.Constraint("Vertical", 6, 2, 8, 2))
sketch12.addConstraint(Sketcher.Constraint("Equal", 7, 8))
sketch12.addConstraint(Sketcher.Constraint("Equal", 6, 9))
sketch12.addConstraint(Sketcher.Constraint("Radius", 11, 10.0))
sketch12.addConstraint(Sketcher.Constraint("Angle", 2, Q("45 deg")))
sketch12.addConstraint(Sketcher.Constraint("DistanceX", -1, 1, 7, 2, 10.0))
sketch12.addConstraint(Sketcher.Constraint("DistanceX", 1, 1, 1, 2, 30.0))
sketch12.addConstraint(Sketcher.Constraint("DistanceY", -1, 1, 0, 2, 70.0))
sketch12.addConstraint(Sketcher.Constraint("DistanceX", -1, 1, 6, 2, 5.0))
sketch12.addConstraint(Sketcher.Constraint("DistanceY", 3, 2, 4, 2, 32.0))
sketch12.addConstraint(Sketcher.Constraint("DistanceY", 6, 2, 5, 2, 2.0))
sketch12.addConstraint(Sketcher.Constraint("Angle", 10, Q("-37.1703 deg")))
sketch12.addConstraint(Sketcher.Constraint("Distance", 4, 37.769))
sketch12.addConstraint(Sketcher.Constraint("Distance", 12, 16.903))
sketch12.addConstraint(Sketcher.Constraint("DistanceY", 0, 2, 0, 1, 15.2932))
sketch12.setExpression("Constraints[26]", "Params.sketch12_radius")
sketch12.setExpression("Constraints[29]", "Params.sketch12_width")
pad6 = body.newObject("PartDesign::Pad", "Pad005")
pad6.Profile = sketch12
pad6.setExpression("Length", "Params.pad6_length")
pad6.Reversed = True

doc.recompute()
